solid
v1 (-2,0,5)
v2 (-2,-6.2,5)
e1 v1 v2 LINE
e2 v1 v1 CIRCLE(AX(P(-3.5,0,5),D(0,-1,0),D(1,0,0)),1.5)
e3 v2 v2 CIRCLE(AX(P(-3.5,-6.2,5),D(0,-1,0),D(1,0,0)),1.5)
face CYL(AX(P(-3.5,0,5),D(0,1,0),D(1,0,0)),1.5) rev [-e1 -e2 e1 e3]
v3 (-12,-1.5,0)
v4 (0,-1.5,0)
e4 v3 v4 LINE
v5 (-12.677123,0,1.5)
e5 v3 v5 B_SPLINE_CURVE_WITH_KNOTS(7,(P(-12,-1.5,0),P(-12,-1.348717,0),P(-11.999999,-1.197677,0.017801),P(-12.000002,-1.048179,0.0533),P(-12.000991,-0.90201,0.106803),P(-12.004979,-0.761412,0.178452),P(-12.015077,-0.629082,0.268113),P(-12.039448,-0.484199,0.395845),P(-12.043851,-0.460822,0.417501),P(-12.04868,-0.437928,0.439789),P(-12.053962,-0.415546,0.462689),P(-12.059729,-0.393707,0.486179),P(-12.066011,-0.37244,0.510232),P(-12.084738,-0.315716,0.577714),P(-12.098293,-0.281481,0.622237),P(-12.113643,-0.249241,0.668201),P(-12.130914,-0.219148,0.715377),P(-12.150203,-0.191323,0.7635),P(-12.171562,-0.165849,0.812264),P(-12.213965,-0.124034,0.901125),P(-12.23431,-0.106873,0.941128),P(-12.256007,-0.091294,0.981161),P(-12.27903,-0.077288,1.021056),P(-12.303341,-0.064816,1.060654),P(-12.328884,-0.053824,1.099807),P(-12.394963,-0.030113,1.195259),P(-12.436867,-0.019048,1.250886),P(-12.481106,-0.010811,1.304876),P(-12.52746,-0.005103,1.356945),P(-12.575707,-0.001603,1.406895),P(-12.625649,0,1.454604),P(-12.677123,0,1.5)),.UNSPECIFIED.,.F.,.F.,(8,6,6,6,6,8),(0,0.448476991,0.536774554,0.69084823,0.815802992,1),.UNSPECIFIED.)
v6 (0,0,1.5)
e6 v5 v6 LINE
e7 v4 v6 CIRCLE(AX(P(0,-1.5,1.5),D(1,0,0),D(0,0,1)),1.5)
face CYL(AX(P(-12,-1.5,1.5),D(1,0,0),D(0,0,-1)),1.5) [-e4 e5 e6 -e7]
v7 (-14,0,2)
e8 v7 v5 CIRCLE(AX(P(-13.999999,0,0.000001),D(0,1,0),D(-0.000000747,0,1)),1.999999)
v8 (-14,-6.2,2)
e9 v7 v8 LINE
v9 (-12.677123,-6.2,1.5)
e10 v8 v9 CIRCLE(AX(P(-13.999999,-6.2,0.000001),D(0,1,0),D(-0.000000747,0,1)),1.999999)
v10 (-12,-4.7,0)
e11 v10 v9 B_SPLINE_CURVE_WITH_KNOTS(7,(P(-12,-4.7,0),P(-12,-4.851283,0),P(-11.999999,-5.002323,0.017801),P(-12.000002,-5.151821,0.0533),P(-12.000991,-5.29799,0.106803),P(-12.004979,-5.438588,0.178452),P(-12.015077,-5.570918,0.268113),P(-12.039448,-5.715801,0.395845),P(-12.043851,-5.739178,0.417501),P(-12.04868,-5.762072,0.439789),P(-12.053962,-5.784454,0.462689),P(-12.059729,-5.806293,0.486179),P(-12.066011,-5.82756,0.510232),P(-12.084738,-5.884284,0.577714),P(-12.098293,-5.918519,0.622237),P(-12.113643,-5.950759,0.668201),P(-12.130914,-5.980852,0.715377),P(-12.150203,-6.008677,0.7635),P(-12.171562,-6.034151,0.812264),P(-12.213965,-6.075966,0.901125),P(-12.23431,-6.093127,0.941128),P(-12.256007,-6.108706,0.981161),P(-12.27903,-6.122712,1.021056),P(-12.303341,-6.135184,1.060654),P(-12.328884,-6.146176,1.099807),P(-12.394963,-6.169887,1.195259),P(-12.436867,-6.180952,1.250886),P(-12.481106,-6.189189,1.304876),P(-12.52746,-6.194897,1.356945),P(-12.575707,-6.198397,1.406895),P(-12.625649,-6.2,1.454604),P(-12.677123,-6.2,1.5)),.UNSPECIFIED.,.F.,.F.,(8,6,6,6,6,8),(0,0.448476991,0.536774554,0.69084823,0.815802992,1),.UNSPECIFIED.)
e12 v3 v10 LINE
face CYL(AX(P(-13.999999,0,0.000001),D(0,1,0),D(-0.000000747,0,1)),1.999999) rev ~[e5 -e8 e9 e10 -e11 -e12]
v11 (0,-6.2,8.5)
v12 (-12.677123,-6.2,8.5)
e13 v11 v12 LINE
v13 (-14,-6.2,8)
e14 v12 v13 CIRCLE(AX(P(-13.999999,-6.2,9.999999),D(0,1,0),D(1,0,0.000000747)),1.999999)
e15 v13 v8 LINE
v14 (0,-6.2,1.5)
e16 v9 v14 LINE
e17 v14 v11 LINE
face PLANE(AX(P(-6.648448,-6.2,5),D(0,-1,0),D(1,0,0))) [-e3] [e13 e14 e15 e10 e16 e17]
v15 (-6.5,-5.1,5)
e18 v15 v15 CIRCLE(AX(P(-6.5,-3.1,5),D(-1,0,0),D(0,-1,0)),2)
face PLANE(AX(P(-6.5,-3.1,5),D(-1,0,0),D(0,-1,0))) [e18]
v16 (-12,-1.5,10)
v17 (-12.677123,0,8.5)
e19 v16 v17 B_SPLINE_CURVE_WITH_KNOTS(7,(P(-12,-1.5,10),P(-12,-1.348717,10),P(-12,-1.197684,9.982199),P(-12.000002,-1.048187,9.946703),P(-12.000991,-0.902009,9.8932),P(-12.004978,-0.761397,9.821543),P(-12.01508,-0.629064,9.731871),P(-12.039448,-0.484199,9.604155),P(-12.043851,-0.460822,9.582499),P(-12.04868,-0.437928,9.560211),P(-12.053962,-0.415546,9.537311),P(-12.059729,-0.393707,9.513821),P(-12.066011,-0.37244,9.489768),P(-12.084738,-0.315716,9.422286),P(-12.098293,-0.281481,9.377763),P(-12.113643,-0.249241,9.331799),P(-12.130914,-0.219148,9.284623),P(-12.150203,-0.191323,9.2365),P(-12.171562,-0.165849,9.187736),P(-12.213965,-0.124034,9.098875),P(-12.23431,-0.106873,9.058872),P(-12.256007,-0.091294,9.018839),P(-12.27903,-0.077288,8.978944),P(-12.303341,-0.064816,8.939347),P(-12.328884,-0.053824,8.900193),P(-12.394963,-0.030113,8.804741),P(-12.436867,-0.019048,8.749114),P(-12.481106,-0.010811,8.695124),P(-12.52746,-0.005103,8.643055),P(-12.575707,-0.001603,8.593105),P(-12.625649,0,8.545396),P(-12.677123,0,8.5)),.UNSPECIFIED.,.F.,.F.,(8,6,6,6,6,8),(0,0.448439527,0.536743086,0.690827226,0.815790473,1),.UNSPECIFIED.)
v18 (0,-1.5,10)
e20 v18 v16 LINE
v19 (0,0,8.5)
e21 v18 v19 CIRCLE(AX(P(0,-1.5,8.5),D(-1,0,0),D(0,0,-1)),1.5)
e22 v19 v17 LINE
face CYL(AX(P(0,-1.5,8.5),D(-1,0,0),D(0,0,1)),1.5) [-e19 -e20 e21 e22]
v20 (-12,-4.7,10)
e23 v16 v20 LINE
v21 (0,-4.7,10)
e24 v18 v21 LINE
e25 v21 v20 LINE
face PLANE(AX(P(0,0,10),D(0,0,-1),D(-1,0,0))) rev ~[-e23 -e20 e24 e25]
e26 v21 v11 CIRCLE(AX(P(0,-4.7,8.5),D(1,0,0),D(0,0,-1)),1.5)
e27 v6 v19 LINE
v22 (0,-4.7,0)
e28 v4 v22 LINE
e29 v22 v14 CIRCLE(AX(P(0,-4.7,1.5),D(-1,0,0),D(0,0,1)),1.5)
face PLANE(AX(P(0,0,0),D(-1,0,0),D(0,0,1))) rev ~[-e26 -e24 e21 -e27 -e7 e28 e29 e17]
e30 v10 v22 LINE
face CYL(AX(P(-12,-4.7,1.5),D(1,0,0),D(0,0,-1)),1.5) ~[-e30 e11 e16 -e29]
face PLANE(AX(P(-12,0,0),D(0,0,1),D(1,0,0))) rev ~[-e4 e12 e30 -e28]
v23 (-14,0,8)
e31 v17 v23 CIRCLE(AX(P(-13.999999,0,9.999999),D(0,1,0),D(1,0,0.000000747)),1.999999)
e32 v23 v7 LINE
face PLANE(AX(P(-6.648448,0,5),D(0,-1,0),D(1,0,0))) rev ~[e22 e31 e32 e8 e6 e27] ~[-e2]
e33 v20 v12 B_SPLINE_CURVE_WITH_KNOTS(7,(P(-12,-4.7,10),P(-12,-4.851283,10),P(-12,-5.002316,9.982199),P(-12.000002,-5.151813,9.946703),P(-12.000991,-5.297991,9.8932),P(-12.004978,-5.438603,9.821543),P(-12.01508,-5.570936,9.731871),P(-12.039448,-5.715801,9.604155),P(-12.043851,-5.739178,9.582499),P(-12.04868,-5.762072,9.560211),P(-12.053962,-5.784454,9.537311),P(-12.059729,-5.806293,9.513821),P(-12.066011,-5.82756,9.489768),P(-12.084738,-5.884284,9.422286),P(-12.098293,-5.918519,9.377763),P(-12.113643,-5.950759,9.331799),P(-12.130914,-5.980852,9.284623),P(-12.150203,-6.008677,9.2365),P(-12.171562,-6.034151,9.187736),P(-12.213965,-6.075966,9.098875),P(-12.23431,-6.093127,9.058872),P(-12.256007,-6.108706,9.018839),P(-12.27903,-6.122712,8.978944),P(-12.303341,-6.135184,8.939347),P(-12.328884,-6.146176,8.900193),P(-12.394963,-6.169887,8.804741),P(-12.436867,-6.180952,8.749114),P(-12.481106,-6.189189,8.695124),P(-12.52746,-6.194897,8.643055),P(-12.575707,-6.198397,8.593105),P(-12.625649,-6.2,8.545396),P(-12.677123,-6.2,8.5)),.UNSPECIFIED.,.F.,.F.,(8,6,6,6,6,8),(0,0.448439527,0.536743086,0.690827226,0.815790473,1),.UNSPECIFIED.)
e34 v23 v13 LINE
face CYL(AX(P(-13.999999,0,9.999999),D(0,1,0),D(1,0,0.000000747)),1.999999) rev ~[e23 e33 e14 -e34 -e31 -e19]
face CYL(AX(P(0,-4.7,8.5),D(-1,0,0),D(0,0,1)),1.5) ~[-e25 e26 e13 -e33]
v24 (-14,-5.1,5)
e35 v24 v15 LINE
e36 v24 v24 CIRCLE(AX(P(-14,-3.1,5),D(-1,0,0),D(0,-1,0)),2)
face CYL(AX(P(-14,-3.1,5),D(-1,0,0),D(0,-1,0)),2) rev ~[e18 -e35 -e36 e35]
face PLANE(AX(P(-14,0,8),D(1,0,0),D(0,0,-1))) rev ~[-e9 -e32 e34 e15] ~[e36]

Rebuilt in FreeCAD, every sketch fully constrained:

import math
import FreeCAD as App
import Part
import Sketcher
from FreeCAD import Vector


def edges_at(feature, points):
    """Names of the edges that pass closest to the given points."""
    edges = feature.Shape.Edges
    near = lambda p: min(range(len(edges)), key=lambda i: edges[i].distToShape(Part.Vertex(*p))[0])
    return sorted({f"Edge{near(p) + 1}" for p in points})

doc = App.newDocument("Part")
params = doc.addObject("Spreadsheet::Sheet", "Params")
for row, (alias, value) in enumerate([
    ("sketch1_diameter", "3 mm"),
    ("sketch1_radius", "1.999999 mm"),
    ("sketch1_width", "12 mm"),
    ("sketch1_height", "10 mm"),
    ("pad1_length", "6.2 mm"),
    ("fillet_radius", "1.5 mm"),
    ("sketch2_diameter", "4 mm"),
    ("pocket1_length", "7.5 mm"),
], start=1):
    params.set(f"A{row}", alias)
    params.set(f"B{row}", "=" + value)
    params.setAlias(f"B{row}", alias)

body = doc.addObject("PartDesign::Body", "Body")

# Sketch on XZ plane
sketch1 = body.newObject("Sketcher::SketchObject", "Sketch")
sketch1.AttachmentSupport = (doc.getObject("XZ_Plane"), [""])
sketch1.MapMode = "FlatFace"
sketch1.addGeometry([
    Part.LineSegment(Vector(-12, 0, 0), Vector(0, 0, 0)),  # 0
    Part.LineSegment(Vector(0, 0, 0), Vector(0, 10, 0)),  # 1
    Part.LineSegment(Vector(0, 10, 0), Vector(-12, 10, 0)),  # 2
    Part.ArcOfCircle(Part.Circle(Vector(-14, 10, 0), Vector(0, 0, 1), 2), math.radians(-90), math.radians(0)),  # 3
    Part.LineSegment(Vector(-14, 8, 0), Vector(-14, 2, 0)),  # 4
    Part.ArcOfCircle(Part.Circle(Vector(-14, 0, 0), Vector(0, 0, 1), 2), math.radians(0), math.radians(90)),  # 5
    Part.Circle(Vector(-3.5, 5, 0), Vector(0, 0, 1), 1.5),  # 6
], False)
sketch1.addConstraint([
    Sketcher.Constraint("Coincident", 0, 2, 1, 1),
    Sketcher.Constraint("Coincident", 1, 2, 2, 1),
    Sketcher.Constraint("Coincident", 2, 2, 3, 2),
    Sketcher.Constraint("Coincident", 3, 1, 4, 1),
    Sketcher.Constraint("Coincident", 4, 2, 5, 2),
    Sketcher.Constraint("Coincident", 5, 1, 0, 1),
    Sketcher.Constraint("Horizontal", 0),
    Sketcher.Constraint("Vertical", 1),
    Sketcher.Constraint("Horizontal", 2),
    Sketcher.Constraint("Vertical", 4),
    Sketcher.Constraint("Coincident", 0, 2, -1, 1),
    Sketcher.Constraint("Equal", 3, 5),
    Sketcher.Constraint("PointOnObject", 5, 3, -1),
    Sketcher.Constraint("Horizontal", 3, 3, 1, 2),
    Sketcher.Constraint("Vertical", 3, 3, 5, 3),
    Sketcher.Constraint("Vertical", 5, 3, 3, 1),
    Sketcher.Constraint("Diameter", 6, 3.0),
    Sketcher.Constraint("Radius", 3, 1.999999),
    Sketcher.Constraint("DistanceX", 0, 1, 0, 2, 12.0),
    Sketcher.Constraint("DistanceY", 1, 1, 1, 2, 10.0),
    Sketcher.Constraint("DistanceY", -1, 1, 6, 3, 5.0),
    Sketcher.Constraint("DistanceX", 6, 3, -1, 1, 3.5),
])
sketch1.setExpression("Constraints[16]", "Params.sketch1_diameter")
sketch1.setExpression("Constraints[17]", "Params.sketch1_radius")
sketch1.setExpression("Constraints[18]", "Params.sketch1_width")
sketch1.setExpression("Constraints[19]", "Params.sketch1_height")
pad1 = body.newObject("PartDesign::Pad", "Pad")
pad1.Profile = sketch1
pad1.setExpression("Length", "Params.pad1_length")
doc.recompute()

fillet = body.newObject("PartDesign::Fillet", "Fillet")
fillet.Base = (pad1, edges_at(pad1, [
    (-6, -6.2, 10),
    (-6, 0, 10),
    (-6, 0, 0),
    (-6, -6.2, 0),
]))
fillet.setExpression("Radius", "Params.fillet_radius")

# Sketch on YZ plane
sketch2 = body.newObject("Sketcher::SketchObject", "Sketch001")
sketch2.AttachmentSupport = (doc.getObject("YZ_Plane"), [""])
sketch2.MapMode = "FlatFace"
sketch2.AttachmentOffset = App.Placement(Vector(0, 0, -14), App.Rotation())
sketch2.addGeometry(Part.Circle(Vector(-3.1, 5, 0), Vector(0, 0, 1), 2), False)
sketch2.addConstraint([
    Sketcher.Constraint("Diameter", 0, 4.0),
    Sketcher.Constraint("DistanceY", -1, 1, 0, 3, 5.0),
    Sketcher.Constraint("DistanceX", 0, 3, -1, 1, 3.1),
])
sketch2.setExpression("Constraints[0]", "Params.sketch2_diameter")
pocket1 = body.newObject("PartDesign::Pocket", "Pocket")
pocket1.Profile = sketch2
pocket1.setExpression("Length", "Params.pocket1_length")
pocket1.Reversed = True

doc.recompute()
